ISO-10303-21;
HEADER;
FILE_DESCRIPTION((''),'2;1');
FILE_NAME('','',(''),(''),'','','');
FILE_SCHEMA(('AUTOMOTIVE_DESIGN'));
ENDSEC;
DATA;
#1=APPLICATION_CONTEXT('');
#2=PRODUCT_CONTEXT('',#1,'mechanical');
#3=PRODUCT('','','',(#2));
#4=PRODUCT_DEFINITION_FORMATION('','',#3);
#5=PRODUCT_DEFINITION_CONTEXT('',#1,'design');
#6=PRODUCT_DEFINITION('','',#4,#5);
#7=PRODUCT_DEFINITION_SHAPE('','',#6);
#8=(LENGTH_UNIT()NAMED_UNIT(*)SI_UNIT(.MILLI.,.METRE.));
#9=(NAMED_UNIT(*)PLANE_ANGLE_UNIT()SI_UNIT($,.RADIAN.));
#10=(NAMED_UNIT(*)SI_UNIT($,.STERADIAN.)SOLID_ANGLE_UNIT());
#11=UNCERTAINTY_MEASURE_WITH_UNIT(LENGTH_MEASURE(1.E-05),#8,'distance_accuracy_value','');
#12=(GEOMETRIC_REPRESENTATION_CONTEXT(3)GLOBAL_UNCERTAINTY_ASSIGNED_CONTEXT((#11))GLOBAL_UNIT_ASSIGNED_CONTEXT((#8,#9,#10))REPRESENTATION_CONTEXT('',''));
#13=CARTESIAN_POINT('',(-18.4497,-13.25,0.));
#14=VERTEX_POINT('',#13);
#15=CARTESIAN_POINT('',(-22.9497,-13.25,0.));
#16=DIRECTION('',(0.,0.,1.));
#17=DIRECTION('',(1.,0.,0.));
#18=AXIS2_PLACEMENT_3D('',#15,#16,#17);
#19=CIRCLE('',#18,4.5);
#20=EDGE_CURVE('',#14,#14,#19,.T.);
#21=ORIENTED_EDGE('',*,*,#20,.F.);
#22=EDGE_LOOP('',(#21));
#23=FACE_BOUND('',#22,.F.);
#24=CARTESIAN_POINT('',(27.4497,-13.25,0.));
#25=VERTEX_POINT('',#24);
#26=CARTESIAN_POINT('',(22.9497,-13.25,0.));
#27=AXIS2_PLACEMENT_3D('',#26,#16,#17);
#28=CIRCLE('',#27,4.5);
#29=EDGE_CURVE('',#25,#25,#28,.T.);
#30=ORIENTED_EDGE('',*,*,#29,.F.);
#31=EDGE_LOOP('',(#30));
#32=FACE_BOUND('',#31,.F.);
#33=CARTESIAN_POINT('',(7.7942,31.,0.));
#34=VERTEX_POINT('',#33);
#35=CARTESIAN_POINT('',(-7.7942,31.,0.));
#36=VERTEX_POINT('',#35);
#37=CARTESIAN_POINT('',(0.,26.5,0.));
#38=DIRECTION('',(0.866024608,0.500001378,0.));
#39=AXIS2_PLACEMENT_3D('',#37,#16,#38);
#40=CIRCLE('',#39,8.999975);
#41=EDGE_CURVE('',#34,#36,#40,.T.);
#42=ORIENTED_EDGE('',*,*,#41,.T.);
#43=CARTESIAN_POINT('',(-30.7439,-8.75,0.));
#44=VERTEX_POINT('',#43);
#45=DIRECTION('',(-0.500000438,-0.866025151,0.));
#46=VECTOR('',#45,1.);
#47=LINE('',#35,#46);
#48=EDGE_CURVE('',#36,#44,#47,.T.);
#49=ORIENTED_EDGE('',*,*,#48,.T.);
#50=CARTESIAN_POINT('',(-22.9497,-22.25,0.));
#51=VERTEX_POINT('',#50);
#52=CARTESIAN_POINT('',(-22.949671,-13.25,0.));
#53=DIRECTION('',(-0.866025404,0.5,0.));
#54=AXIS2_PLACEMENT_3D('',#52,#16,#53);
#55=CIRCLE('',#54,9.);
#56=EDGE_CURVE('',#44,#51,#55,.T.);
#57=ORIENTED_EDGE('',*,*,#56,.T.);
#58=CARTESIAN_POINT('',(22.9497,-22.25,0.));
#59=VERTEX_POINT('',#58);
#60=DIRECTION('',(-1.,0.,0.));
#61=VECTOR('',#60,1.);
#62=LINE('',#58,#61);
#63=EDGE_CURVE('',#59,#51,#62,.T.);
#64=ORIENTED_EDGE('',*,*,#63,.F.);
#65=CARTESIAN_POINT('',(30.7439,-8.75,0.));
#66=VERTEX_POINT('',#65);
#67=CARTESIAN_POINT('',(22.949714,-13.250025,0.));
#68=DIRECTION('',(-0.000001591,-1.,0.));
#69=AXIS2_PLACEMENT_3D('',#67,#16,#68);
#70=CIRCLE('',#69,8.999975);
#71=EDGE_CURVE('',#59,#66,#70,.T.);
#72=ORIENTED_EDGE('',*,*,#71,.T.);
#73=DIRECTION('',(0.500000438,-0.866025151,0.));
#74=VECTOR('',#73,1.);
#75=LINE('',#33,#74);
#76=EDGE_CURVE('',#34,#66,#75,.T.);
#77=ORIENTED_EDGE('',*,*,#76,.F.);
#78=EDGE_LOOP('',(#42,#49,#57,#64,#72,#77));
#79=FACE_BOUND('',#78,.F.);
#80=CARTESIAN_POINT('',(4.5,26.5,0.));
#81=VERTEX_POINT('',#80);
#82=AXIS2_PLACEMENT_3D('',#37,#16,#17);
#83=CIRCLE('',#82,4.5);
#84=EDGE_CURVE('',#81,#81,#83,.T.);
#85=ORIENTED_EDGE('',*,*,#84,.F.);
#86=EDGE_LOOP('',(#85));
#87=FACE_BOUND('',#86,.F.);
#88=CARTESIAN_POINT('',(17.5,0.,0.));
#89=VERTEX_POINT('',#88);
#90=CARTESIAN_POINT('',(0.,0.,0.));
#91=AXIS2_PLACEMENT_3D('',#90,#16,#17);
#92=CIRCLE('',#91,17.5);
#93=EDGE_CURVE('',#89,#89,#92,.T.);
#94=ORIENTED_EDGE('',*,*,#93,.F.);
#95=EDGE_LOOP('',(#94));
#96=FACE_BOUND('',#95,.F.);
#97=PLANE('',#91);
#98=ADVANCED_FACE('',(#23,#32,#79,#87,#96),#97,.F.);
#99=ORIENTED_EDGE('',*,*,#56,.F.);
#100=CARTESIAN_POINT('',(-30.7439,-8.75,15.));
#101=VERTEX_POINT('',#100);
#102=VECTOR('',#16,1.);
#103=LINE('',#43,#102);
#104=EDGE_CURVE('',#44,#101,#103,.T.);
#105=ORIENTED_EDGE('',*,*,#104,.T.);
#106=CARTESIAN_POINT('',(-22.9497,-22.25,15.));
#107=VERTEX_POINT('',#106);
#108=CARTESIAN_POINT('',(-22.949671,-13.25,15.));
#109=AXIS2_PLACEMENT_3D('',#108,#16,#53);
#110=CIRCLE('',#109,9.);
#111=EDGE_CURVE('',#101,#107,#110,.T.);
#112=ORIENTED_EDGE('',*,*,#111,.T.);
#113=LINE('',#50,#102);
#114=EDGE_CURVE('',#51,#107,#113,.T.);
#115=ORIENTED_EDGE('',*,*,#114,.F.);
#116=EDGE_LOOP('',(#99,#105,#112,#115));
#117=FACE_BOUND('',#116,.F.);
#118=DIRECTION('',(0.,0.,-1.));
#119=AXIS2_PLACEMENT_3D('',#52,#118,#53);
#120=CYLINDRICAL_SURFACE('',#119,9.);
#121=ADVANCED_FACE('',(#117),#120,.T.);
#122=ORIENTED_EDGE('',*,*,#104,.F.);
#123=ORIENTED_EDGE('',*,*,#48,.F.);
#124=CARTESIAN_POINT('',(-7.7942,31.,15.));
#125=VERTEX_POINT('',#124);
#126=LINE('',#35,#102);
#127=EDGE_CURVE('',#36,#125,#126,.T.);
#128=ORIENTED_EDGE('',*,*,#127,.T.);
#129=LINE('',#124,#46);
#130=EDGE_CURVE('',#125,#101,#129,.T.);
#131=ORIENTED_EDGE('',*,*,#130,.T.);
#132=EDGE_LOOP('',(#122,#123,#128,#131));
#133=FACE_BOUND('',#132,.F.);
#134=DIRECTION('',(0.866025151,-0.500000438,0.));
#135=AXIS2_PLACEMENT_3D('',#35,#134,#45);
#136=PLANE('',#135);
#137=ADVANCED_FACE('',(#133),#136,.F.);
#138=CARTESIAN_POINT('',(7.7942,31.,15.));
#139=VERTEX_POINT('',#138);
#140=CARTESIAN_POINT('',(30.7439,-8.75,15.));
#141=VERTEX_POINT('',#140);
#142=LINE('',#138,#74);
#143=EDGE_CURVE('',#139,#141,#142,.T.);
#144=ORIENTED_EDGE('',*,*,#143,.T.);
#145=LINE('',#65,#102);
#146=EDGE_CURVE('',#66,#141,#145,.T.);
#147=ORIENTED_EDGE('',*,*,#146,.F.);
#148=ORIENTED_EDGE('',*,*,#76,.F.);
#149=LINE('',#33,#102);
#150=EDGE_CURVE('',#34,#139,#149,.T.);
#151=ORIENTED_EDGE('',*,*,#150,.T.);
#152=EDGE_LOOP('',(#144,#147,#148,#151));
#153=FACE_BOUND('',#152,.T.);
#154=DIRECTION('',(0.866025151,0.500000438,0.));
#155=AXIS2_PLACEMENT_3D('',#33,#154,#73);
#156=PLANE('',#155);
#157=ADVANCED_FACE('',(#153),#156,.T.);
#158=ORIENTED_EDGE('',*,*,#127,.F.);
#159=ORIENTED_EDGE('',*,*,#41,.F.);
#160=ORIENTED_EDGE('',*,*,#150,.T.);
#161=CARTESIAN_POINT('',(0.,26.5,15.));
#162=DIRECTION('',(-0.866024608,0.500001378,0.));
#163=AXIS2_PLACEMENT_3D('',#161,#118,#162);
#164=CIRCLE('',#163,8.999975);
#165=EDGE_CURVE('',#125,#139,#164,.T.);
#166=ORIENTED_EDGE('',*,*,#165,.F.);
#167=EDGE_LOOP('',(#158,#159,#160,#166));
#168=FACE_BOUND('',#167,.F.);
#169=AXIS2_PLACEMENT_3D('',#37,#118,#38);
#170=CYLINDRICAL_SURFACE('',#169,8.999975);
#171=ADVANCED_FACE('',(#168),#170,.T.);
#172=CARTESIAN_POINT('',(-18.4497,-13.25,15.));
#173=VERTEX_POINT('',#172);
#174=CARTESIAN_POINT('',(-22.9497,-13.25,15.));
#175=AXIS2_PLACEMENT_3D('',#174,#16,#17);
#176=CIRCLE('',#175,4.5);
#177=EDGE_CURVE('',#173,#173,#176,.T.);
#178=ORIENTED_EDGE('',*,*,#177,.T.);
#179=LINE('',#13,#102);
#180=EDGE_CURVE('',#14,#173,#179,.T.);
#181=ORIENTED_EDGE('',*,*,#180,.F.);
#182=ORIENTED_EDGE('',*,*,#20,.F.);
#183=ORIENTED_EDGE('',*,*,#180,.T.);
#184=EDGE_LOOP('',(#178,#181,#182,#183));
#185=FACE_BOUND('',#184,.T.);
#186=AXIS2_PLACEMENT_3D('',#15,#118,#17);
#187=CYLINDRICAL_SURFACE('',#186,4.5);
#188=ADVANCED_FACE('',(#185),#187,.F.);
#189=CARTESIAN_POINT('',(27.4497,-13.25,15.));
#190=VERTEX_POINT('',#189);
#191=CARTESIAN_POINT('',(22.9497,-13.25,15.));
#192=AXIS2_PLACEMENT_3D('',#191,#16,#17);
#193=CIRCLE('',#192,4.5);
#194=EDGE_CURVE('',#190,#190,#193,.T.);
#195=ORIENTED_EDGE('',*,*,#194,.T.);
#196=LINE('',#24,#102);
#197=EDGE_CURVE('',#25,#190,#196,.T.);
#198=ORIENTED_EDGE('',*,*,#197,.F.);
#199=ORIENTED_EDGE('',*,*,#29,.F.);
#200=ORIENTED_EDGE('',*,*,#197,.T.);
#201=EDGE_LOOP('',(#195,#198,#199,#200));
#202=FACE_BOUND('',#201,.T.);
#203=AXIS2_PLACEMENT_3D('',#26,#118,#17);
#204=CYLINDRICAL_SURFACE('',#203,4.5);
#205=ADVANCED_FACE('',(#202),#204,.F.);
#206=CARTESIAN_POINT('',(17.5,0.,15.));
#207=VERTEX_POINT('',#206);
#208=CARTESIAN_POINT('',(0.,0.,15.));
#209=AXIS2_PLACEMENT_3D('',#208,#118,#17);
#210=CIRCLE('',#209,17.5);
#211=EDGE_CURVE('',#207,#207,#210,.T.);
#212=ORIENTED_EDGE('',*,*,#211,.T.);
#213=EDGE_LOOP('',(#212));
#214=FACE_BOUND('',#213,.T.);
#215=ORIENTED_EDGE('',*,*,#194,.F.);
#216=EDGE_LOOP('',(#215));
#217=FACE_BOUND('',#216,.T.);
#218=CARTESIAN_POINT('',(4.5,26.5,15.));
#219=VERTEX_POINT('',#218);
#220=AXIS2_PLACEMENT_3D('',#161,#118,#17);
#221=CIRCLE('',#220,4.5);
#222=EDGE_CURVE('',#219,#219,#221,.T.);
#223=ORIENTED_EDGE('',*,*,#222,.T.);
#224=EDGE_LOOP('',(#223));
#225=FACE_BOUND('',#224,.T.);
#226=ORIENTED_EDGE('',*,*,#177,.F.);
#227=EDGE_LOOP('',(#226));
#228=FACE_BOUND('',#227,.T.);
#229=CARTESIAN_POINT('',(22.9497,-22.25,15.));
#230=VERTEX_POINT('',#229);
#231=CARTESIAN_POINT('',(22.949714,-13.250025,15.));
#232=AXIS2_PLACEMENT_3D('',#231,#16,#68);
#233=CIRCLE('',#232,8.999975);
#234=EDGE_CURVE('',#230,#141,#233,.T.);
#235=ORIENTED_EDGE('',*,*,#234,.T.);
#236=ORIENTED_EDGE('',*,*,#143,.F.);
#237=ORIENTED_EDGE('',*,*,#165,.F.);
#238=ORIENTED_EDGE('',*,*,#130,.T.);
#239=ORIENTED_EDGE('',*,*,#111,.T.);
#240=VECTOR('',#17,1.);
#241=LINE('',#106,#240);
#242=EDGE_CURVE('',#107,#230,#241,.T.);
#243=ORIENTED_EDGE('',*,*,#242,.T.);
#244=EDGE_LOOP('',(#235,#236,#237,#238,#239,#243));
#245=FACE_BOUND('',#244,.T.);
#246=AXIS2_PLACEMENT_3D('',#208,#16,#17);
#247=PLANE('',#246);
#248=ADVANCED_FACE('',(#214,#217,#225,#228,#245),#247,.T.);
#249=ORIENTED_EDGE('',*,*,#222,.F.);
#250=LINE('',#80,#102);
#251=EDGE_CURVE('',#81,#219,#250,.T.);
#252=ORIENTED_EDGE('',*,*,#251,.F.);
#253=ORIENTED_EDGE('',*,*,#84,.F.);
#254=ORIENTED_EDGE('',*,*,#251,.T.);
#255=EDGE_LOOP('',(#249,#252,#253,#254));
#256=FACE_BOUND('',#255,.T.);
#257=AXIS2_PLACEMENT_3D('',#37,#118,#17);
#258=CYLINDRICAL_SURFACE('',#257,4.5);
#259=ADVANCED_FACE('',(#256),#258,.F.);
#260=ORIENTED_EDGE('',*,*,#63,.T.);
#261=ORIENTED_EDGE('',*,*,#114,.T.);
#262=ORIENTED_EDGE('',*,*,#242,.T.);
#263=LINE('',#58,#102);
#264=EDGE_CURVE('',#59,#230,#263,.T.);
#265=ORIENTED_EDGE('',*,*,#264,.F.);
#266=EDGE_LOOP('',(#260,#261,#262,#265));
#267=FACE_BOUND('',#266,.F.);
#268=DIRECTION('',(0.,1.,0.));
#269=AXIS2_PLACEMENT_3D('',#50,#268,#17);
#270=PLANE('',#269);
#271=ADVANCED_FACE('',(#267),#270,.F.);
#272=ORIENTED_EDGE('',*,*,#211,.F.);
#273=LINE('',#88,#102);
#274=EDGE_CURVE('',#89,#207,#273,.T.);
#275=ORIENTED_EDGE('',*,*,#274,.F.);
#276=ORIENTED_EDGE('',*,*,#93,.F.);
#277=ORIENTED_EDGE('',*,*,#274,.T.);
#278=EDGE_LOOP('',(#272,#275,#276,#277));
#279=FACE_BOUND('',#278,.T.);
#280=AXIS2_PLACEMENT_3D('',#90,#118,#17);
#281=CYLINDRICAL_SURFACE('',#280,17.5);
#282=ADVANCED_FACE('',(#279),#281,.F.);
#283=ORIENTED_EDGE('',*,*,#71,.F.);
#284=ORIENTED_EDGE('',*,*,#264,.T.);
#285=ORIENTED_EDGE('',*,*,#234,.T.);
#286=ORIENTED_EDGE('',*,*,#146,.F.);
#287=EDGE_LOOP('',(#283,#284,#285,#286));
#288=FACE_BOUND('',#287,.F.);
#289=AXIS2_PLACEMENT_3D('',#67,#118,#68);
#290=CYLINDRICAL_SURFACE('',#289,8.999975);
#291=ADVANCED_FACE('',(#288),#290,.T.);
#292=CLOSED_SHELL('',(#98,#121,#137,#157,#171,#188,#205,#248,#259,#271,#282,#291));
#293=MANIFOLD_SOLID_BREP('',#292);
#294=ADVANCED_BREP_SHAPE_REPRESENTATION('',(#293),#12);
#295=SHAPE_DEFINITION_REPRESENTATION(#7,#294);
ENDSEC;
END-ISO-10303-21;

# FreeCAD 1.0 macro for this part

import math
import FreeCAD as App
import Part
import Sketcher
Q = App.Units.Quantity

doc = App.newDocument("Part")
body = doc.addObject("PartDesign::Body", "Body")

# Sketch on XY plane
sketch1 = doc.addObject("Sketcher::SketchObject", "Sketch")
body.addObject(sketch1)
sketch1.AttachmentSupport = (doc.XY_Plane, [""])
sketch1.MapMode = "FlatFace"
sketch1.addGeometry([
    Part.LineSegment(App.Vector(-7.7942, 31, 0), App.Vector(-30.7439, -8.75, 0)),  # 0
    Part.ArcOfCircle(Part.Circle(App.Vector(-22.9497, -13.25, 0), App.Vector(0, 0, 1), 8.999975), math.radians(149.999909), math.radians(270)),  # 1
    Part.LineSegment(App.Vector(-22.9497, -22.25, 0), App.Vector(22.9497, -22.25, 0)),  # 2
    Part.ArcOfCircle(Part.Circle(App.Vector(22.9497, -13.25, 0), App.Vector(0, 0, 1), 9), math.radians(-90), math.radians(30.000091)),  # 3
    Part.LineSegment(App.Vector(30.7439, -8.75, 0), App.Vector(7.7942, 31, 0)),  # 4
    Part.ArcOfCircle(Part.Circle(App.Vector(0, 26.5, 0), App.Vector(0, 0, 1), 8.999975), math.radians(30.000091), math.radians(149.999909)),  # 5
    Part.Circle(App.Vector(0, 26.5, 0), App.Vector(0, 0, 1), 4.5),  # 6
    Part.Circle(App.Vector(0, 0, 0), App.Vector(0, 0, 1), 17.5),  # 7
    Part.Circle(App.Vector(-22.9497, -13.25, 0), App.Vector(0, 0, 1), 4.5),  # 8
    Part.Circle(App.Vector(22.9497, -13.25, 0), App.Vector(0, 0, 1), 4.5),  # 9
], False)
sketch1.addConstraint([
    Sketcher.Constraint("Tangent", 0, 2, 1, 1),
    Sketcher.Constraint("Tangent", 1, 2, 2, 1),
    Sketcher.Constraint("Tangent", 2, 2, 3, 1),
    Sketcher.Constraint("Tangent", 3, 2, 4, 1),
    Sketcher.Constraint("Tangent", 4, 2, 5, 1),
    Sketcher.Constraint("Tangent", 5, 2, 0, 1),
    Sketcher.Constraint("Horizontal", 2),
    Sketcher.Constraint("Coincident", 7, 3, -1, 1),
    Sketcher.Constraint("Coincident", 6, 3, 5, 3),
    Sketcher.Constraint("Coincident", 8, 3, 1, 3),
    Sketcher.Constraint("Coincident", 9, 3, 3, 3),
    Sketcher.Constraint("Equal", 1, 3),
    Sketcher.Constraint("Equal", 3, 5),
    Sketcher.Constraint("Equal", 6, 8),
    Sketcher.Constraint("Equal", 8, 9),
    Sketcher.Constraint("Symmetric", 0, 2, 3, 2, -2),
    Sketcher.Constraint("Diameter", 6, 9.0),
    Sketcher.Constraint("Diameter", 7, 35.0),
    Sketcher.Constraint("Radius", 1, 9.0),
    Sketcher.Constraint("Angle", 0, Q("-120 deg")),
    Sketcher.Constraint("DistanceY", -1, 1, 4, 2, 31.0),
    Sketcher.Constraint("DistanceY", 1, 3, -1, 1, 13.25),
])
pad1 = doc.addObject("PartDesign::Pad", "Pad")
body.addObject(pad1)
pad1.Profile = sketch1
pad1.Length = 15

doc.recompute()
